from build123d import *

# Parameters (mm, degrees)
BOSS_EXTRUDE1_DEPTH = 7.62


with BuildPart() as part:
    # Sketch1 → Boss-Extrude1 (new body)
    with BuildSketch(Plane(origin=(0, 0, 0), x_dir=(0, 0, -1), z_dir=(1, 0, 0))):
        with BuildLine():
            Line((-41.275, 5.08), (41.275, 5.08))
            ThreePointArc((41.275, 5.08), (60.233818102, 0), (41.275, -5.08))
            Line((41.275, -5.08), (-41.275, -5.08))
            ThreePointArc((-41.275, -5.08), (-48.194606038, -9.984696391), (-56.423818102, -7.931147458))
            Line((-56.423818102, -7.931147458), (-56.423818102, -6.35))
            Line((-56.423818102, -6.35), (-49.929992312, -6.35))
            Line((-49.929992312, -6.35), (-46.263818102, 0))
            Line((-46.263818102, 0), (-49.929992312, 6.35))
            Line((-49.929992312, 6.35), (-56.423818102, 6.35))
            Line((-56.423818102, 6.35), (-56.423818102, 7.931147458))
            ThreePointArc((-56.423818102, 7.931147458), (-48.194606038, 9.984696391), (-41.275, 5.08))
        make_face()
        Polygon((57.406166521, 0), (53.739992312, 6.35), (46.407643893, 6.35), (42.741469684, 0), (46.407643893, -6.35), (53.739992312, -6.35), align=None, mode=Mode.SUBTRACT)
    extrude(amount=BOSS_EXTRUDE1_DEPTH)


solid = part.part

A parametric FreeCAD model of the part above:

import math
import FreeCAD as App
import Part
import Sketcher

V = App.Vector
Q = App.Units.Quantity


def add_polygon(sketch, points):
    """Adds a closed chain of lines whose ends are joined by coincident constraints."""
    first, n = sketch.GeometryCount, len(points)
    for a, b in zip(points, points[1:] + points[:1]):
        sketch.addGeometry(Part.LineSegment(App.Vector(*a, 0), App.Vector(*b, 0)), False)
    for i in range(n):
        sketch.addConstraint(Sketcher.Constraint("Coincident", first + i, 2, first + (i + 1) % n, 1))

doc = App.newDocument("Part")
body = doc.addObject("PartDesign::Body", "Body")

# Sketch on YZ plane
sketch1 = doc.addObject("Sketcher::SketchObject", "Sketch")
body.addObject(sketch1)
sketch1.AttachmentSupport = (doc.YZ_Plane, [""])
sketch1.MapMode = "FlatFace"
sketch1.addGeometry(Part.LineSegment(V(5.08, -41.275, 0), V(5.08, 41.275, 0)), False)  # 0
sketch1.addGeometry(Part.ArcOfCircle(Part.Circle(V(0, 50.073818, 0), V(0, 0, 1), 10.16), math.radians(-60), math.radians(38.682187)), False)  # 1
sketch1.addGeometry(Part.LineSegment(V(7.931147, 56.423818, 0), V(6.35, 56.423818, 0)), False)  # 2
sketch1.addGeometry(Part.LineSegment(V(6.35, 56.423818, 0), V(6.35, 49.929992, 0)), False)  # 3
sketch1.addGeometry(Part.LineSegment(V(6.35, 49.929992, 0), V(0, 46.263818, 0)), False)  # 4
sketch1.addGeometry(Part.LineSegment(V(0, 46.263818, 0), V(-6.35, 49.929992, 0)), False)  # 5
sketch1.addGeometry(Part.LineSegment(V(-6.35, 49.929992, 0), V(-6.35, 56.423818, 0)), False)  # 6
sketch1.addGeometry(Part.LineSegment(V(-6.35, 56.423818, 0), V(-7.931147, 56.423818, 0)), False)  # 7
sketch1.addGeometry(Part.ArcOfCircle(Part.Circle(V(0, 50.073818, 0), V(0, 0, 1), 10.16), math.radians(141.317813), math.radians(240)), False)  # 8
sketch1.addGeometry(Part.LineSegment(V(-5.08, 41.275, 0), V(-5.08, -41.275, 0)), False)  # 9
sketch1.addGeometry(Part.ArcOfCircle(Part.Circle(V(0, -50.073818, 0), V(0, 0, 1), 10.16), math.radians(120), math.radians(420)), False)  # 10
add_polygon(sketch1, [(0, -57.406167), (-6.35, -53.739992), (-6.35, -46.407644), (0, -42.74147), (6.35, -46.407644), (6.35, -53.739992)])  # lines 11-16
sketch1.addConstraint([
    Sketcher.Constraint("Coincident", 0, 2, 1, 1),
    Sketcher.Constraint("Coincident", 1, 2, 2, 1),
    Sketcher.Constraint("Coincident", 2, 2, 3, 1),
    Sketcher.Constraint("Coincident", 3, 2, 4, 1),
    Sketcher.Constraint("Coincident", 4, 2, 5, 1),
    Sketcher.Constraint("Coincident", 5, 2, 6, 1),
    Sketcher.Constraint("Coincident", 6, 2, 7, 1),
    Sketcher.Constraint("Coincident", 7, 2, 8, 1),
    Sketcher.Constraint("Coincident", 8, 2, 9, 1),
    Sketcher.Constraint("Coincident", 9, 2, 10, 1),
    Sketcher.Constraint("Coincident", 10, 2, 0, 1),
    Sketcher.Constraint("Vertical", 0),
    Sketcher.Constraint("Horizontal", 2),
    Sketcher.Constraint("Vertical", 3),
    Sketcher.Constraint("Vertical", 6),
    Sketcher.Constraint("Horizontal", 7),
    Sketcher.Constraint("Vertical", 9),
    Sketcher.Constraint("Vertical", 12),
    Sketcher.Constraint("Vertical", 15),
    Sketcher.Constraint("Coincident", 8, 3, 1, 3),
    Sketcher.Constraint("Equal", 1, 8),
    Sketcher.Constraint("Equal", 8, 10),
    Sketcher.Constraint("Symmetric", 1, 3, 10, 3, -1, 1),
    Sketcher.Constraint("Symmetric", 3, 2, 5, 2, -2),
    Sketcher.Constraint("Symmetric", 1, 2, 7, 2, -2),
    Sketcher.Constraint("Symmetric", 12, 2, 14, 2, -2),
    Sketcher.Constraint("PointOnObject", 4, 2, -2),
    Sketcher.Constraint("PointOnObject", 13, 2, -2),
    Sketcher.Constraint("PointOnObject", 16, 2, -2),
    Sketcher.Constraint("Parallel", 5, 11),
    Sketcher.Constraint("Parallel", 4, 13),
    Sketcher.Constraint("Parallel", 13, 16),
    Sketcher.Constraint("Horizontal", 0, 2, 8, 2),
    Sketcher.Constraint("Vertical", 6, 2, 11, 2),
    Sketcher.Constraint("Radius", 1, Q("0.4 in")),
    Sketcher.Constraint("Angle", 4, Q("-150 deg")),
    Sketcher.Constraint("DistanceY", 0, 1, 0, 2, Q("3.25 in")),
    Sketcher.Constraint("DistanceX", -1, 1, 0, 2, Q("0.2 in")),
    Sketcher.Constraint("DistanceY", 4, 2, 2, 2, Q("0.4 in")),
    Sketcher.Constraint("DistanceX", 5, 2, 3, 2, Q("0.5 in")),
    Sketcher.Constraint("DistanceY", 1, 3, 1, 2, Q("0.25 in")),
    Sketcher.Constraint("DistanceY", 12, 1, 12, 2, Q("7.332348 mm")),
    Sketcher.Constraint("DistanceY", 13, 2, -1, 1, Q("42.74147 mm")),
])
pad1 = doc.addObject("PartDesign::Pad", "Pad")
body.addObject(pad1)
pad1.Profile = sketch1
pad1.Length = Q("0.3 in")

doc.recompute()
